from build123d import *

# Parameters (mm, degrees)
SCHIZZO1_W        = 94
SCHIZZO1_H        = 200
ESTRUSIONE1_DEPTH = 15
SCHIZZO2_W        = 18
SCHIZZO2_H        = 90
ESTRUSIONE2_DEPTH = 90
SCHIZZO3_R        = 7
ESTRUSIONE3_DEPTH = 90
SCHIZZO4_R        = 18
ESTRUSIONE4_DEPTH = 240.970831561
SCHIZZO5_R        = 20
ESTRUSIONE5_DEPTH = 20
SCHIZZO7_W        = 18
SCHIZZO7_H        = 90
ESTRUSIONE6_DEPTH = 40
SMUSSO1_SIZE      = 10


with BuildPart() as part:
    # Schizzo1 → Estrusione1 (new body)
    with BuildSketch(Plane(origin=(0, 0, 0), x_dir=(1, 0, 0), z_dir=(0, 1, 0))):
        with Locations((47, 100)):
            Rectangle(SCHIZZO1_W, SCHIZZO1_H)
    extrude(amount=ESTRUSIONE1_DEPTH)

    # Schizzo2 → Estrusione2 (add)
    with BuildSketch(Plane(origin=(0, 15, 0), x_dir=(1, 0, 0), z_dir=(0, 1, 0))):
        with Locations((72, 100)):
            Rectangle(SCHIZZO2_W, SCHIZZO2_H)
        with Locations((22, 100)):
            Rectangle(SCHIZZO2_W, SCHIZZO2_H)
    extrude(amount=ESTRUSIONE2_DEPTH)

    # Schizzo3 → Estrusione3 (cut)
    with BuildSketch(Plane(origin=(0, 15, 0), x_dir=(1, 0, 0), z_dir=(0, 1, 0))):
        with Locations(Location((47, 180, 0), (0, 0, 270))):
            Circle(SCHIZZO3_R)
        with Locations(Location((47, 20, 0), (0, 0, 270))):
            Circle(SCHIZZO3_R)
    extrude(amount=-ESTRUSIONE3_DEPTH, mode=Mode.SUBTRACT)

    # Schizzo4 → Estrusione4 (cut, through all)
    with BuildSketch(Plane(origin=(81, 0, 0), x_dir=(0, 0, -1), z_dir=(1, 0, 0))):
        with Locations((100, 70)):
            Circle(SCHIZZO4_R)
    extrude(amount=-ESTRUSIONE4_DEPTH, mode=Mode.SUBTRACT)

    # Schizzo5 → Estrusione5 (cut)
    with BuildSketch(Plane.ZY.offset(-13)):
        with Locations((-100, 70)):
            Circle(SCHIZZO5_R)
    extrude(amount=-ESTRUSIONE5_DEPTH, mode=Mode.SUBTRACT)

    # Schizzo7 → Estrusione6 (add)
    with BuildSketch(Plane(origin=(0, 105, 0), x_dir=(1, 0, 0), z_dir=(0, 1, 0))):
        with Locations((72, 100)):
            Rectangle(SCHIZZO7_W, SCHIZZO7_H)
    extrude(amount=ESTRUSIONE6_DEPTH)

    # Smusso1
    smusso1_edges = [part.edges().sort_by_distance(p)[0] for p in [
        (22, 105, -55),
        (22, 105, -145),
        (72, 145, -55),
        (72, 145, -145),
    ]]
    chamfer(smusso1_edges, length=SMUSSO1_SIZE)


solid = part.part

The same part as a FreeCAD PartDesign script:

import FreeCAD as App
import Part
import Sketcher

V = App.Vector


def edges_at(feature, points):
    """Names of the edges that pass closest to the given points."""
    edges = feature.Shape.Edges
    near = lambda p: min(range(len(edges)), key=lambda i: edges[i].distToShape(Part.Vertex(*p))[0])
    return sorted({f"Edge{near(p) + 1}" for p in points})

doc = App.newDocument("Part")
body = doc.addObject("PartDesign::Body", "Body")

sketch1 = doc.addObject("Sketcher::SketchObject", "Sketch")
body.addObject(sketch1)
sketch1.AttachmentSupport = (doc.XZ_Plane, [""])
sketch1.MapMode = "FlatFace"
sketch1.addGeometry(Part.LineSegment(V(0, -200, 0), V(0, 0, 0)), False)
sketch1.addGeometry(Part.LineSegment(V(0, 0, 0), V(94, 0, 0)), False)
sketch1.addGeometry(Part.LineSegment(V(94, 0, 0), V(94, -200, 0)), False)
sketch1.addGeometry(Part.LineSegment(V(94, -200, 0), V(0, -200, 0)), False)
sketch1.addConstraint(Sketcher.Constraint("Coincident", 0, 2, 1, 1))
sketch1.addConstraint(Sketcher.Constraint("Coincident", 1, 2, 2, 1))
sketch1.addConstraint(Sketcher.Constraint("Coincident", 2, 2, 3, 1))
sketch1.addConstraint(Sketcher.Constraint("Coincident", 3, 2, 0, 1))
sketch1.addConstraint(Sketcher.Constraint("Vertical", 0))
sketch1.addConstraint(Sketcher.Constraint("Horizontal", 1))
sketch1.addConstraint(Sketcher.Constraint("Vertical", 2))
sketch1.addConstraint(Sketcher.Constraint("Horizontal", 3))
sketch1.addConstraint(Sketcher.Constraint("Coincident", 0, 2, -1, 1))
sketch1.addConstraint(Sketcher.Constraint("DistanceX", 1, 1, 1, 2, 94.0))
sketch1.addConstraint(Sketcher.Constraint("DistanceY", 0, 1, 0, 2, 200.0))
pad1 = doc.addObject("PartDesign::Pad", "Pad")
body.addObject(pad1)
pad1.Profile = sketch1
pad1.Length = 15
pad1.Reversed = True

sketch2 = doc.addObject("Sketcher::SketchObject", "Sketch001")
body.addObject(sketch2)
sketch2.AttachmentSupport = (doc.XZ_Plane, [""])
sketch2.MapMode = "FlatFace"
sketch2.AttachmentOffset = App.Placement(V(0, 0, -15), App.Rotation())
sketch2.addGeometry(Part.LineSegment(V(63, -145, 0), V(63, -55, 0)), False)
sketch2.addGeometry(Part.LineSegment(V(63, -55, 0), V(81, -55, 0)), False)
sketch2.addGeometry(Part.LineSegment(V(81, -55, 0), V(81, -145, 0)), False)
sketch2.addGeometry(Part.LineSegment(V(81, -145, 0), V(63, -145, 0)), False)
sketch2.addGeometry(Part.LineSegment(V(13, -145, 0), V(13, -55, 0)), False)
sketch2.addGeometry(Part.LineSegment(V(13, -55, 0), V(31, -55, 0)), False)
sketch2.addGeometry(Part.LineSegment(V(31, -55, 0), V(31, -145, 0)), False)
sketch2.addGeometry(Part.LineSegment(V(31, -145, 0), V(13, -145, 0)), False)
sketch2.addConstraint(Sketcher.Constraint("Coincident", 0, 2, 1, 1))
sketch2.addConstraint(Sketcher.Constraint("Coincident", 1, 2, 2, 1))
sketch2.addConstraint(Sketcher.Constraint("Coincident", 2, 2, 3, 1))
sketch2.addConstraint(Sketcher.Constraint("Coincident", 3, 2, 0, 1))
sketch2.addConstraint(Sketcher.Constraint("Coincident", 4, 2, 5, 1))
sketch2.addConstraint(Sketcher.Constraint("Coincident", 5, 2, 6, 1))
sketch2.addConstraint(Sketcher.Constraint("Coincident", 6, 2, 7, 1))
sketch2.addConstraint(Sketcher.Constraint("Coincident", 7, 2, 4, 1))
sketch2.addConstraint(Sketcher.Constraint("Vertical", 0))
sketch2.addConstraint(Sketcher.Constraint("Horizontal", 1))
sketch2.addConstraint(Sketcher.Constraint("Vertical", 2))
sketch2.addConstraint(Sketcher.Constraint("Horizontal", 3))
sketch2.addConstraint(Sketcher.Constraint("Vertical", 4))
sketch2.addConstraint(Sketcher.Constraint("Horizontal", 5))
sketch2.addConstraint(Sketcher.Constraint("Vertical", 6))
sketch2.addConstraint(Sketcher.Constraint("Horizontal", 7))
sketch2.addConstraint(Sketcher.Constraint("Horizontal", 1, 2, 4, 2))
sketch2.addConstraint(Sketcher.Constraint("Horizontal", 3, 2, 6, 2))
sketch2.addConstraint(Sketcher.Constraint("Equal", 3, 5))
sketch2.addConstraint(Sketcher.Constraint("DistanceX", 1, 1, 1, 2, 18.0))
sketch2.addConstraint(Sketcher.Constraint("DistanceY", 0, 1, 0, 2, 90.0))
sketch2.addConstraint(Sketcher.Constraint("DistanceX", -1, 1, 0, 2, 63.0))
sketch2.addConstraint(Sketcher.Constraint("DistanceY", 0, 2, -1, 1, 55.0))
sketch2.addConstraint(Sketcher.Constraint("DistanceX", -1, 1, 4, 2, 13.0))
pad2 = doc.addObject("PartDesign::Pad", "Pad001")
body.addObject(pad2)
pad2.Profile = sketch2
pad2.Length = 90
pad2.Reversed = True

sketch3 = doc.addObject("Sketcher::SketchObject", "Sketch002")
body.addObject(sketch3)
sketch3.AttachmentSupport = (doc.XZ_Plane, [""])
sketch3.MapMode = "FlatFace"
sketch3.AttachmentOffset = App.Placement(V(0, 0, -15), App.Rotation())
sketch3.addGeometry(Part.Circle(V(47, -180, 0), V(0, 0, 1), 7), False)
sketch3.addGeometry(Part.Circle(V(47, -20, 0), V(0, 0, 1), 7), False)
sketch3.addConstraint(Sketcher.Constraint("Equal", 0, 1))
sketch3.addConstraint(Sketcher.Constraint("Vertical", 0, 3, 1, 3))
sketch3.addConstraint(Sketcher.Constraint("Diameter", 0, 14.0))
sketch3.addConstraint(Sketcher.Constraint("DistanceX", -1, 1, 0, 3, 47.0))
sketch3.addConstraint(Sketcher.Constraint("DistanceY", 0, 3, -1, 1, 180.0))
sketch3.addConstraint(Sketcher.Constraint("DistanceY", 1, 3, -1, 1, 20.0))
pocket1 = doc.addObject("PartDesign::Pocket", "Pocket")
body.addObject(pocket1)
pocket1.Profile = sketch3
pocket1.Length = 90
pocket1.Reversed = True

sketch4 = doc.addObject("Sketcher::SketchObject", "Sketch003")
body.addObject(sketch4)
sketch4.AttachmentSupport = (doc.YZ_Plane, [""])
sketch4.MapMode = "FlatFace"
sketch4.AttachmentOffset = App.Placement(V(0, 0, 81), App.Rotation())
sketch4.addGeometry(Part.Circle(V(70, -100, 0), V(0, 0, 1), 18), False)
sketch4.addConstraint(Sketcher.Constraint("Diameter", 0, 36.0))
sketch4.addConstraint(Sketcher.Constraint("DistanceX", -1, 1, 0, 3, 70.0))
sketch4.addConstraint(Sketcher.Constraint("DistanceY", 0, 3, -1, 1, 100.0))
pocket2 = doc.addObject("PartDesign::Pocket", "Pocket001")
body.addObject(pocket2)
pocket2.Profile = sketch4
pocket2.Type = "ThroughAll"

sketch5 = doc.addObject("Sketcher::SketchObject", "Sketch004")
body.addObject(sketch5)
sketch5.AttachmentSupport = (doc.YZ_Plane, [""])
sketch5.MapMode = "FlatFace"
sketch5.AttachmentOffset = App.Placement(V(0, 0, 13), App.Rotation())
sketch5.addGeometry(Part.Circle(V(70, -100, 0), V(0, 0, 1), 20), False)
sketch5.addConstraint(Sketcher.Constraint("Diameter", 0, 40.0))
sketch5.addConstraint(Sketcher.Constraint("DistanceX", -1, 1, 0, 3, 70.0))
sketch5.addConstraint(Sketcher.Constraint("DistanceY", 0, 3, -1, 1, 100.0))
pocket3 = doc.addObject("PartDesign::Pocket", "Pocket002")
body.addObject(pocket3)
pocket3.Profile = sketch5
pocket3.Length = 20
pocket3.Reversed = True

sketch6 = doc.addObject("Sketcher::SketchObject", "Sketch005")
body.addObject(sketch6)
sketch6.AttachmentSupport = (doc.XZ_Plane, [""])
sketch6.MapMode = "FlatFace"
sketch6.AttachmentOffset = App.Placement(V(0, 0, -105), App.Rotation())
sketch6.addGeometry(Part.LineSegment(V(63, -145, 0), V(63, -55, 0)), False)
sketch6.addGeometry(Part.LineSegment(V(63, -55, 0), V(81, -55, 0)), False)
sketch6.addGeometry(Part.LineSegment(V(81, -55, 0), V(81, -145, 0)), False)
sketch6.addGeometry(Part.LineSegment(V(81, -145, 0), V(63, -145, 0)), False)
sketch6.addConstraint(Sketcher.Constraint("Coincident", 0, 2, 1, 1))
sketch6.addConstraint(Sketcher.Constraint("Coincident", 1, 2, 2, 1))
sketch6.addConstraint(Sketcher.Constraint("Coincident", 2, 2, 3, 1))
sketch6.addConstraint(Sketcher.Constraint("Coincident", 3, 2, 0, 1))
sketch6.addConstraint(Sketcher.Constraint("Vertical", 0))
sketch6.addConstraint(Sketcher.Constraint("Horizontal", 1))
sketch6.addConstraint(Sketcher.Constraint("Vertical", 2))
sketch6.addConstraint(Sketcher.Constraint("Horizontal", 3))
sketch6.addConstraint(Sketcher.Constraint("DistanceX", 1, 1, 1, 2, 18.0))
sketch6.addConstraint(Sketcher.Constraint("DistanceY", 0, 1, 0, 2, 90.0))
sketch6.addConstraint(Sketcher.Constraint("DistanceX", -1, 1, 0, 2, 63.0))
sketch6.addConstraint(Sketcher.Constraint("DistanceY", 0, 2, -1, 1, 55.0))
pad3 = doc.addObject("PartDesign::Pad", "Pad002")
body.addObject(pad3)
pad3.Profile = sketch6
pad3.Length = 40
pad3.Reversed = True
doc.recompute()

chamfer = doc.addObject("PartDesign::Chamfer", "Chamfer")
body.addObject(chamfer)
chamfer.Base = (pad3, edges_at(pad3, [
    (22, 105, -55),
    (22, 105, -145),
    (72, 145, -55),
    (72, 145, -145),
]))
chamfer.Size = 10

doc.recompute()
